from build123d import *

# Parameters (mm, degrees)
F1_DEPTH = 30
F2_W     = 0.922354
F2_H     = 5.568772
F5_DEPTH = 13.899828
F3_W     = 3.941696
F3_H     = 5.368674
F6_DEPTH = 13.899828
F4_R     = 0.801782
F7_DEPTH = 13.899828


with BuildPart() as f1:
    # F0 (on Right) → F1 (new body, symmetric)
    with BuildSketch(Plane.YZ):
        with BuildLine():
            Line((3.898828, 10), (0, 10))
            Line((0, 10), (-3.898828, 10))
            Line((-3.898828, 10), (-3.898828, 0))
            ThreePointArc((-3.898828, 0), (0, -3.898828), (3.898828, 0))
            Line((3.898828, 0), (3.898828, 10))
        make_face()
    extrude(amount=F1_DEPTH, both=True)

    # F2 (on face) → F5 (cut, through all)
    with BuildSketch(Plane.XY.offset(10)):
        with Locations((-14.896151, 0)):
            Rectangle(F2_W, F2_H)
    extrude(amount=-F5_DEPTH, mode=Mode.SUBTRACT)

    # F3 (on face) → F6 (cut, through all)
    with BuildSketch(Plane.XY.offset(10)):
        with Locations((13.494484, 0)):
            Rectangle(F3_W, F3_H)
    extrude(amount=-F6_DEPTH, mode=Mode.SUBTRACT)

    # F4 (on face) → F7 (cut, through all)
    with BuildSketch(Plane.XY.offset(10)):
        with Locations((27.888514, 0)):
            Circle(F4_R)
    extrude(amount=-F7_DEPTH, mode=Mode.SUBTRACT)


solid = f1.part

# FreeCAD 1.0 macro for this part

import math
import FreeCAD as App
import Part
import Sketcher
from FreeCAD import Vector


def add_polygon(sketch, points):
    """Adds a closed chain of lines whose ends are joined by coincident constraints."""
    first, n = sketch.GeometryCount, len(points)
    for a, b in zip(points, points[1:] + points[:1]):
        sketch.addGeometry(Part.LineSegment(App.Vector(*a, 0), App.Vector(*b, 0)), False)
    for i in range(n):
        sketch.addConstraint(Sketcher.Constraint("Coincident", first + i, 2, first + (i + 1) % n, 1))

doc = App.newDocument("Part")
params = doc.addObject("Spreadsheet::Sheet", "Params")
for row, (alias, value) in enumerate([
    ("sketch1_height", "10 mm"),
    ("pad1_length", "60 mm"),
], start=1):
    params.set(f"A{row}", alias)
    params.set(f"B{row}", "=" + value)
    params.setAlias(f"B{row}", alias)

body = doc.addObject("PartDesign::Body", "Body")

sketch1 = body.newObject("Sketcher::SketchObject", "Sketch")
sketch1.AttachmentSupport = (doc.getObject("YZ_Plane"), [""])
sketch1.MapMode = "FlatFace"
sketch1.addGeometry([
    Part.LineSegment(Vector(3.9, 10, 0), Vector(-3.9, 10, 0)),
    Part.LineSegment(Vector(-3.9, 10, 0), Vector(-3.9, 0, 0)),
    Part.ArcOfCircle(Part.Circle(Vector(0, 0, 0), Vector(0, 0, 1), 3.9), math.radians(180), math.radians(360)),
    Part.LineSegment(Vector(3.9, 0, 0), Vector(3.9, 10, 0)),
], False)
sketch1.addConstraint([
    Sketcher.Constraint("Coincident", 0, 2, 1, 1),
    Sketcher.Constraint("Tangent", 1, 2, 2, 1),
    Sketcher.Constraint("Tangent", 2, 2, 3, 1),
    Sketcher.Constraint("Coincident", 3, 2, 0, 1),
    Sketcher.Constraint("Horizontal", 0),
    Sketcher.Constraint("Vertical", 1),
    Sketcher.Constraint("Vertical", 3),
    Sketcher.Constraint("Coincident", 2, 3, -1, 1),
    Sketcher.Constraint("DistanceY", 1, 2, 1, 1, 10.0),
    Sketcher.Constraint("Radius", 2, 3.898828),
])
sketch1.setExpression("Constraints[8]", "Params.sketch1_height")
pad1 = body.newObject("PartDesign::Pad", "Pad")
pad1.Profile = sketch1
pad1.setExpression("Length", "Params.pad1_length")
pad1.Midplane = True

sketch2 = body.newObject("Sketcher::SketchObject", "Sketch001")
sketch2.AttachmentSupport = (doc.getObject("XY_Plane"), [""])
sketch2.MapMode = "FlatFace"
sketch2.AttachmentOffset = App.Placement(Vector(0, 0, 10), App.Rotation())
add_polygon(sketch2, [(-15.4, 2.8), (-15.4, -2.8), (-14.4, -2.8), (-14.4, 2.8)])
sketch2.addConstraint([
    Sketcher.Constraint("Vertical", 0),
    Sketcher.Constraint("Horizontal", 1),
    Sketcher.Constraint("Vertical", 2),
    Sketcher.Constraint("Horizontal", 3),
    Sketcher.Constraint("DistanceX", 1, 1, 1, 2, 0.922354),
    Sketcher.Constraint("DistanceY", 0, 2, 0, 1, 5.568772),
    Sketcher.Constraint("DistanceX", 0, 2, -1, 1, 15.357328),
    Sketcher.Constraint("DistanceY", 0, 2, -1, 1, 2.784386),
])
pocket1 = body.newObject("PartDesign::Pocket", "Pocket")
pocket1.Profile = sketch2
pocket1.Type = "ThroughAll"

sketch3 = body.newObject("Sketcher::SketchObject", "Sketch002")
sketch3.AttachmentSupport = (doc.getObject("XY_Plane"), [""])
sketch3.MapMode = "FlatFace"
sketch3.AttachmentOffset = App.Placement(Vector(0, 0, 10), App.Rotation())
add_polygon(sketch3, [(11.5, 2.7), (11.5, -2.7), (15.5, -2.7), (15.5, 2.7)])
sketch3.addConstraint([
    Sketcher.Constraint("Vertical", 0),
    Sketcher.Constraint("Horizontal", 1),
    Sketcher.Constraint("Vertical", 2),
    Sketcher.Constraint("Horizontal", 3),
    Sketcher.Constraint("DistanceX", 1, 1, 1, 2, 3.941696),
    Sketcher.Constraint("DistanceY", 0, 2, 0, 1, 5.368674),
    Sketcher.Constraint("DistanceX", -1, 1, 0, 2, 11.523636),
    Sketcher.Constraint("DistanceY", 0, 2, -1, 1, 2.684337),
])
pocket2 = body.newObject("PartDesign::Pocket", "Pocket001")
pocket2.Profile = sketch3
pocket2.Type = "ThroughAll"

sketch4 = body.newObject("Sketcher::SketchObject", "Sketch003")
sketch4.AttachmentSupport = (doc.getObject("XY_Plane"), [""])
sketch4.MapMode = "FlatFace"
sketch4.AttachmentOffset = App.Placement(Vector(0, 0, 10), App.Rotation())
sketch4.addGeometry(Part.Circle(Vector(27.9, 0, 0), Vector(0, 0, 1), 0.8), False)
sketch4.addConstraint([
    Sketcher.Constraint("PointOnObject", 0, 3, -1),
    Sketcher.Constraint("Diameter", 0, 1.603564),
    Sketcher.Constraint("DistanceX", -1, 1, 0, 3, 27.888514),
])
pocket3 = body.newObject("PartDesign::Pocket", "Pocket002")
pocket3.Profile = sketch4
pocket3.Type = "ThroughAll"

doc.recompute()
